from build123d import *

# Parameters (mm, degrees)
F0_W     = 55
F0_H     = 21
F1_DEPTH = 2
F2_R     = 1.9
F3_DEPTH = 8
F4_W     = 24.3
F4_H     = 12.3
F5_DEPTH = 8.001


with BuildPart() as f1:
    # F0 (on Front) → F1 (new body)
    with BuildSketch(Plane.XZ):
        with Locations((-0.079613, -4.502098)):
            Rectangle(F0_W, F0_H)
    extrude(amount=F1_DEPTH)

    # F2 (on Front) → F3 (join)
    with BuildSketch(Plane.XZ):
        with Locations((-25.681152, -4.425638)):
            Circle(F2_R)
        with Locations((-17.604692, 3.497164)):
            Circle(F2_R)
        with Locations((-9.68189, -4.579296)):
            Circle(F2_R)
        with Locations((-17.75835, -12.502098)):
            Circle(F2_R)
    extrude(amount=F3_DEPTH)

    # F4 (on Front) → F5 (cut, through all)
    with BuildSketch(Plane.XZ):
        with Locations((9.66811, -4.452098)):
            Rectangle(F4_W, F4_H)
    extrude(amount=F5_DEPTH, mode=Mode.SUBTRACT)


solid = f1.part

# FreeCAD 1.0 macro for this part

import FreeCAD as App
import Part
import Sketcher
from FreeCAD import Vector
Q = App.Units.Quantity


def add_polygon(sketch, points):
    """Adds a closed chain of lines whose ends are joined by coincident constraints."""
    first, n = sketch.GeometryCount, len(points)
    for a, b in zip(points, points[1:] + points[:1]):
        sketch.addGeometry(Part.LineSegment(App.Vector(*a, 0), App.Vector(*b, 0)), False)
    for i in range(n):
        sketch.addConstraint(Sketcher.Constraint("Coincident", first + i, 2, first + (i + 1) % n, 1))

doc = App.newDocument("Part")
body = doc.addObject("PartDesign::Body", "Body")

sketch1 = doc.addObject("Sketcher::SketchObject", "Sketch")
body.addObject(sketch1)
sketch1.AttachmentSupport = (doc.XZ_Plane, [""])
sketch1.MapMode = "FlatFace"
add_polygon(sketch1, [(-27.579613, 5.997902), (-27.579613, -15.002098), (27.420387, -15.002098), (27.420387, 5.997902)])
sketch1.addConstraint(Sketcher.Constraint("Vertical", 0))
sketch1.addConstraint(Sketcher.Constraint("Horizontal", 1))
sketch1.addConstraint(Sketcher.Constraint("Vertical", 2))
sketch1.addConstraint(Sketcher.Constraint("Horizontal", 3))
sketch1.addConstraint(Sketcher.Constraint("DistanceX", 1, 1, 1, 2, Q("55 mm")))
sketch1.addConstraint(Sketcher.Constraint("DistanceY", 0, 2, 0, 1, Q("21 mm")))
sketch1.addConstraint(Sketcher.Constraint("DistanceX", 0, 2, -1, 1, Q("27.579613 mm")))
sketch1.addConstraint(Sketcher.Constraint("DistanceY", 0, 2, -1, 1, Q("15.002098 mm")))
pad1 = doc.addObject("PartDesign::Pad", "Pad")
body.addObject(pad1)
pad1.Profile = sketch1
pad1.Length = 2

sketch2 = doc.addObject("Sketcher::SketchObject", "Sketch001")
body.addObject(sketch2)
sketch2.AttachmentSupport = (doc.XZ_Plane, [""])
sketch2.MapMode = "FlatFace"
sketch2.addGeometry(Part.Circle(Vector(-25.681152, -4.425638, 0), Vector(0, 0, 1), 1.9), False)
sketch2.addGeometry(Part.Circle(Vector(-17.604692, 3.497164, 0), Vector(0, 0, 1), 1.9), False)
sketch2.addGeometry(Part.Circle(Vector(-9.68189, -4.579296, 0), Vector(0, 0, 1), 1.9), False)
sketch2.addGeometry(Part.Circle(Vector(-17.75835, -12.502098, 0), Vector(0, 0, 1), 1.9), False)
sketch2.addConstraint(Sketcher.Constraint("Equal", 0, 1))
sketch2.addConstraint(Sketcher.Constraint("Equal", 1, 2))
sketch2.addConstraint(Sketcher.Constraint("Equal", 2, 3))
sketch2.addConstraint(Sketcher.Constraint("Diameter", 0, Q("3.8 mm")))
sketch2.addConstraint(Sketcher.Constraint("DistanceY", 0, 3, -1, 1, Q("4.425638 mm")))
sketch2.addConstraint(Sketcher.Constraint("DistanceX", 1, 3, -1, 1, Q("17.604692 mm")))
sketch2.addConstraint(Sketcher.Constraint("DistanceX", 2, 3, -1, 1, Q("9.68189 mm")))
sketch2.addConstraint(Sketcher.Constraint("DistanceX", 3, 3, -1, 1, Q("17.75835 mm")))
sketch2.addConstraint(Sketcher.Constraint("DistanceX", 0, 3, 1, 3, Q("8.07646 mm")))
sketch2.addConstraint(Sketcher.Constraint("DistanceY", 2, 3, 1, 3, Q("8.07646 mm")))
sketch2.addConstraint(Sketcher.Constraint("DistanceY", 2, 3, 0, 3, Q("0.153658 mm")))
sketch2.addConstraint(Sketcher.Constraint("DistanceY", 3, 3, 0, 3, Q("8.07646 mm")))
pad2 = doc.addObject("PartDesign::Pad", "Pad001")
body.addObject(pad2)
pad2.Profile = sketch2
pad2.Length = 8

sketch3 = doc.addObject("Sketcher::SketchObject", "Sketch002")
body.addObject(sketch3)
sketch3.AttachmentSupport = (doc.XZ_Plane, [""])
sketch3.MapMode = "FlatFace"
add_polygon(sketch3, [(-2.48189, 1.697902), (-2.48189, -10.602098), (21.81811, -10.602098), (21.81811, 1.697902)])
sketch3.addConstraint(Sketcher.Constraint("Vertical", 0))
sketch3.addConstraint(Sketcher.Constraint("Horizontal", 1))
sketch3.addConstraint(Sketcher.Constraint("Vertical", 2))
sketch3.addConstraint(Sketcher.Constraint("Horizontal", 3))
sketch3.addConstraint(Sketcher.Constraint("DistanceX", 1, 1, 1, 2, Q("24.3 mm")))
sketch3.addConstraint(Sketcher.Constraint("DistanceY", 0, 2, 0, 1, Q("12.3 mm")))
sketch3.addConstraint(Sketcher.Constraint("DistanceX", 0, 2, -1, 1, Q("2.48189 mm")))
sketch3.addConstraint(Sketcher.Constraint("DistanceY", 0, 2, -1, 1, Q("10.602098 mm")))
pocket1 = doc.addObject("PartDesign::Pocket", "Pocket")
body.addObject(pocket1)
pocket1.Profile = sketch3
pocket1.Type = "ThroughAll"
pocket1.Reversed = True

doc.recompute()
